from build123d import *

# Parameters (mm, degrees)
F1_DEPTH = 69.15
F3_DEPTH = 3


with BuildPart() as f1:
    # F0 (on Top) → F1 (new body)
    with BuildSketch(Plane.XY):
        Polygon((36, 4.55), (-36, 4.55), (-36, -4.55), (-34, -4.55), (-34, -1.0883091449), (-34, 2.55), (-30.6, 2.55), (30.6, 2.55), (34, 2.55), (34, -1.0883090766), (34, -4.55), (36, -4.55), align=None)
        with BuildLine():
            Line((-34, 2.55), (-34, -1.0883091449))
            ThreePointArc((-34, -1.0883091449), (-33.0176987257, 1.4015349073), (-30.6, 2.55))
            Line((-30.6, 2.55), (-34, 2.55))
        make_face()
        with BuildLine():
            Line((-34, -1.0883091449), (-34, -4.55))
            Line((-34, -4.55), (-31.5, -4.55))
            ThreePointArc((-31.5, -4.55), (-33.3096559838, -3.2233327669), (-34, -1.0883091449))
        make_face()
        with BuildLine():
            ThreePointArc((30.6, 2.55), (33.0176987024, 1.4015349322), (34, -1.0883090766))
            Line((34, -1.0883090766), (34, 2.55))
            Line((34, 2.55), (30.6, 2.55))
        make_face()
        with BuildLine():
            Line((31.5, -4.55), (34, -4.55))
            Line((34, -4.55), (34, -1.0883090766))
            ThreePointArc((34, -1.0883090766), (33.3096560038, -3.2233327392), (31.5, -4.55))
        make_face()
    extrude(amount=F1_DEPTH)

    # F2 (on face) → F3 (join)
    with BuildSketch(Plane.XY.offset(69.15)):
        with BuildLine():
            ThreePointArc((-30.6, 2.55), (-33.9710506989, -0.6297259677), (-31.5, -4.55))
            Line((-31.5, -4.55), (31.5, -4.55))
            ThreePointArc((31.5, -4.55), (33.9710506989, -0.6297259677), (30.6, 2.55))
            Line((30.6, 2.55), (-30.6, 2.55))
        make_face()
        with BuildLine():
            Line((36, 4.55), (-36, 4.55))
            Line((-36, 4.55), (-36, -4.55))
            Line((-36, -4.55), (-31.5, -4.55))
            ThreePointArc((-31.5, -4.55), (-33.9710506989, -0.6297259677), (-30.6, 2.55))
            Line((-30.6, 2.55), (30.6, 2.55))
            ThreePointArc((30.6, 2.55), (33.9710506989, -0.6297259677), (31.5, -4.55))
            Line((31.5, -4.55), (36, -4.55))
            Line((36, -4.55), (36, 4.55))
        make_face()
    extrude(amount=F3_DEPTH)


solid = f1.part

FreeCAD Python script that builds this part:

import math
import FreeCAD as App
import Part
import Sketcher
Q = App.Units.Quantity


def add_polygon(sketch, points):
    """Adds a closed chain of lines whose ends are joined by coincident constraints."""
    first, n = sketch.GeometryCount, len(points)
    for a, b in zip(points, points[1:] + points[:1]):
        sketch.addGeometry(Part.LineSegment(App.Vector(*a, 0), App.Vector(*b, 0)), False)
    for i in range(n):
        sketch.addConstraint(Sketcher.Constraint("Coincident", first + i, 2, first + (i + 1) % n, 1))

doc = App.newDocument("Part")
body = doc.addObject("PartDesign::Body", "Body")

# Sketch on XY plane
sketch1 = body.newObject("Sketcher::SketchObject", "Sketch")
sketch1.AttachmentSupport = (doc.getObject("XY_Plane"), [""])
sketch1.MapMode = "FlatFace"
sketch1.addGeometry(Part.LineSegment(App.Vector(36, 4.55, 0), App.Vector(-36, 4.55, 0)), False)
sketch1.addGeometry(Part.LineSegment(App.Vector(-36, 4.55, 0), App.Vector(-36, -4.55, 0)), False)
sketch1.addGeometry(Part.LineSegment(App.Vector(-36, -4.55, 0), App.Vector(-31.5, -4.55, 0)), False)
sketch1.addGeometry(Part.ArcOfCircle(Part.Circle(App.Vector(-30.353339, -1.088309, 0), App.Vector(0, 0, 1), 3.646661), math.radians(-179.999999), math.radians(-108.327089)), False)
sketch1.addGeometry(Part.ArcOfCircle(Part.Circle(App.Vector(-30.353339, -1.088309, 0), App.Vector(0, 0, 1), 3.646661), math.radians(93.878458), math.radians(180.000001)), False)
sketch1.addGeometry(Part.LineSegment(App.Vector(-30.6, 2.55, 0), App.Vector(30.6, 2.55, 0)), False)
sketch1.addGeometry(Part.ArcOfCircle(Part.Circle(App.Vector(30.353339, -1.088309, 0), App.Vector(0, 0, 1), 3.646661), math.radians(0.000001), math.radians(86.121542)), False)
sketch1.addGeometry(Part.ArcOfCircle(Part.Circle(App.Vector(30.353339, -1.088309, 0), App.Vector(0, 0, 1), 3.646661), math.radians(-71.672911), math.radians(0.000001)), False)
sketch1.addGeometry(Part.LineSegment(App.Vector(31.5, -4.55, 0), App.Vector(36, -4.55, 0)), False)
sketch1.addGeometry(Part.LineSegment(App.Vector(36, -4.55, 0), App.Vector(36, 4.55, 0)), False)
sketch1.addConstraint(Sketcher.Constraint("Coincident", 0, 2, 1, 1))
sketch1.addConstraint(Sketcher.Constraint("Coincident", 1, 2, 2, 1))
sketch1.addConstraint(Sketcher.Constraint("Coincident", 2, 2, 3, 2))
sketch1.addConstraint(Sketcher.Constraint("Tangent", 3, 1, 4, 2))
sketch1.addConstraint(Sketcher.Constraint("Coincident", 4, 1, 5, 1))
sketch1.addConstraint(Sketcher.Constraint("Coincident", 5, 2, 6, 2))
sketch1.addConstraint(Sketcher.Constraint("Tangent", 6, 1, 7, 2))
sketch1.addConstraint(Sketcher.Constraint("Coincident", 7, 1, 8, 1))
sketch1.addConstraint(Sketcher.Constraint("Coincident", 8, 2, 9, 1))
sketch1.addConstraint(Sketcher.Constraint("Coincident", 9, 2, 0, 1))
sketch1.addConstraint(Sketcher.Constraint("Horizontal", 0))
sketch1.addConstraint(Sketcher.Constraint("Vertical", 1))
sketch1.addConstraint(Sketcher.Constraint("Horizontal", 2))
sketch1.addConstraint(Sketcher.Constraint("Horizontal", 5))
sketch1.addConstraint(Sketcher.Constraint("Horizontal", 8))
sketch1.addConstraint(Sketcher.Constraint("Vertical", 9))
sketch1.addConstraint(Sketcher.Constraint("Equal", 3, 4))
sketch1.addConstraint(Sketcher.Constraint("Equal", 4, 6))
sketch1.addConstraint(Sketcher.Constraint("Equal", 6, 7))
sketch1.addConstraint(Sketcher.Constraint("Symmetric", 0, 2, 8, 2, -1, 1))
sketch1.addConstraint(Sketcher.Constraint("Symmetric", 3, 3, 6, 3, -2))
sketch1.addConstraint(Sketcher.Constraint("Horizontal", 7, 3, 3, 1))
sketch1.addConstraint(Sketcher.Constraint("Horizontal", 3, 1, 6, 1))
sketch1.addConstraint(Sketcher.Constraint("Horizontal", 2, 2, 7, 1))
sketch1.addConstraint(Sketcher.Constraint("DistanceX", 0, 2, 0, 1, Q("72 mm")))
sketch1.addConstraint(Sketcher.Constraint("DistanceX", 2, 1, 2, 2, Q("4.5 mm")))
sketch1.addConstraint(Sketcher.Constraint("DistanceX", 5, 1, 5, 2, Q("61.2 mm")))
sketch1.addConstraint(Sketcher.Constraint("DistanceY", 1, 2, 1, 1, Q("9.1 mm")))
sketch1.addConstraint(Sketcher.Constraint("DistanceX", 3, 1, -1, 1, Q("34 mm")))
sketch1.addConstraint(Sketcher.Constraint("DistanceY", 4, 1, 0, 2, Q("2 mm")))
pad1 = body.newObject("PartDesign::Pad", "Pad")
pad1.Profile = sketch1
pad1.Length = 69.15

# Sketch on XY plane
sketch2 = body.newObject("Sketcher::SketchObject", "Sketch001")
sketch2.AttachmentSupport = (doc.getObject("XY_Plane"), [""])
sketch2.MapMode = "FlatFace"
sketch2.AttachmentOffset = App.Placement(App.Vector(0, 0, 69.15), App.Rotation())
add_polygon(sketch2, [(36, -4.55), (36, 4.55), (-36, 4.55), (-36, -4.55)])  # lines 0-3
sketch2.addConstraint(Sketcher.Constraint("Vertical", 0))
sketch2.addConstraint(Sketcher.Constraint("Horizontal", 1))
sketch2.addConstraint(Sketcher.Constraint("Vertical", 2))
sketch2.addConstraint(Sketcher.Constraint("Horizontal", 3))
sketch2.addConstraint(Sketcher.Constraint("Symmetric", 0, 2, 2, 2, -1, 1))
sketch2.addConstraint(Sketcher.Constraint("DistanceX", 1, 2, 1, 1, Q("72 mm")))
sketch2.addConstraint(Sketcher.Constraint("DistanceY", 0, 1, 0, 2, Q("9.1 mm")))
pad2 = body.newObject("PartDesign::Pad", "Pad001")
pad2.Profile = sketch2
pad2.Length = 3

doc.recompute()
